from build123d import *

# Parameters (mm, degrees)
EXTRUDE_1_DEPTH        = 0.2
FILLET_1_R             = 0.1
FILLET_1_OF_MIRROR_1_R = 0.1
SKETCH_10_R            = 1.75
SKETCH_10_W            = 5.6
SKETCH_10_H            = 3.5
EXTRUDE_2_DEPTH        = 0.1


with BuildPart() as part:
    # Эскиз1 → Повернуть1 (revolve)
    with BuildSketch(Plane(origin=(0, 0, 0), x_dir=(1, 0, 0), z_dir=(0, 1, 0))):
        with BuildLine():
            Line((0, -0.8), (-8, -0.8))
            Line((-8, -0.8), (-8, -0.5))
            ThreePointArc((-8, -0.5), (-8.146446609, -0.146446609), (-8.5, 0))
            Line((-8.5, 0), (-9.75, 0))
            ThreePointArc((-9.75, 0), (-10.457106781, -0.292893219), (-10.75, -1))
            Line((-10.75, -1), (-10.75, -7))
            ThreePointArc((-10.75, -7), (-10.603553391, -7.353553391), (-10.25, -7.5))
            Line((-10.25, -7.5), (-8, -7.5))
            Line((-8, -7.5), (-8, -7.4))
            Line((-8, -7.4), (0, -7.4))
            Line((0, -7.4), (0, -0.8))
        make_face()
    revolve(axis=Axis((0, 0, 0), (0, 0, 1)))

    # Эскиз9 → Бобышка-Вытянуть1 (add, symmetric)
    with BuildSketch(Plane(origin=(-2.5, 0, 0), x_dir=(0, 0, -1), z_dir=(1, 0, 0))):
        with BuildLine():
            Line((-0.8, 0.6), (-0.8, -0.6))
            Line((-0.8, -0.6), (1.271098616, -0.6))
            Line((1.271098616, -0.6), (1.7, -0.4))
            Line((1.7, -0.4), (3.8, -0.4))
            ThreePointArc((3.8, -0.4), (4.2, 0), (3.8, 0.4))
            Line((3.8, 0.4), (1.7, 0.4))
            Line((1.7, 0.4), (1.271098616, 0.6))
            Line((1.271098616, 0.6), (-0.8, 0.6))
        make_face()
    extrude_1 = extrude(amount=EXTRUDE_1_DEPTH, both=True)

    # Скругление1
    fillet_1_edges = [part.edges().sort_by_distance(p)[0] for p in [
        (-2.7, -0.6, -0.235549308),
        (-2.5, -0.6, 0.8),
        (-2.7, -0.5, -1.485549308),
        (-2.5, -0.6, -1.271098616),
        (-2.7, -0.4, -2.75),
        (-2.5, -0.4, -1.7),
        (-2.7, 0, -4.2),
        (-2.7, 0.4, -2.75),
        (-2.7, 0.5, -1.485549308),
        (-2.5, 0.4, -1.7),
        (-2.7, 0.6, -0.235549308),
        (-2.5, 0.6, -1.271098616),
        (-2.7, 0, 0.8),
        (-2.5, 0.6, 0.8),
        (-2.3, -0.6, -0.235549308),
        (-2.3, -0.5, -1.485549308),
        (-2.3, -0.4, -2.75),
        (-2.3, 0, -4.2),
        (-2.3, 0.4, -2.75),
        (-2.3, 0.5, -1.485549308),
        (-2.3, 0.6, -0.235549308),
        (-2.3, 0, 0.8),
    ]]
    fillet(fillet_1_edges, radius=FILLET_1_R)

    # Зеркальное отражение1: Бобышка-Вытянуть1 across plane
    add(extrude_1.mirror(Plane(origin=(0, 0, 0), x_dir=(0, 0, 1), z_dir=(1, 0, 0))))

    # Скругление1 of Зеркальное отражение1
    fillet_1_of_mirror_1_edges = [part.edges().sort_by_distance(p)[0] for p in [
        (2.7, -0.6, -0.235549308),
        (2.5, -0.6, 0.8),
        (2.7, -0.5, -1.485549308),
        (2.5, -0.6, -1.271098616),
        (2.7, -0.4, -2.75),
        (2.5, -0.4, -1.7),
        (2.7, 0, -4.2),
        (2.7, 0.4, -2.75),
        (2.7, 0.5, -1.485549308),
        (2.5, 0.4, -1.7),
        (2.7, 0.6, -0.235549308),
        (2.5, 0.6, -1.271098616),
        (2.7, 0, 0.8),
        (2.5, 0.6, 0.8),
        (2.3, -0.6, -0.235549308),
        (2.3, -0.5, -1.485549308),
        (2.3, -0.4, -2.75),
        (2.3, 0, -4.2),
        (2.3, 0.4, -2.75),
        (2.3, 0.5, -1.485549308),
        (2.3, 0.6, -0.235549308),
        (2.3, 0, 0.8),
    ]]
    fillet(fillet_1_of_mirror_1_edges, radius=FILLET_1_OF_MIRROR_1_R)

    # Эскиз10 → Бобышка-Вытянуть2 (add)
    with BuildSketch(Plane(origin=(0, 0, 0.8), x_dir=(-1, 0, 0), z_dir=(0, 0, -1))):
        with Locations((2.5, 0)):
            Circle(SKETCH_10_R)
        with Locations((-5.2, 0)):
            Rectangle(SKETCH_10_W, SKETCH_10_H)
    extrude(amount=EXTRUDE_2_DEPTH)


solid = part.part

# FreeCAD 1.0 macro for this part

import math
import FreeCAD as App
import Part
import Sketcher
Q = App.Units.Quantity


def edges_at(feature, points):
    """Names of the edges that pass closest to the given points."""
    edges = feature.Shape.Edges
    near = lambda p: min(range(len(edges)), key=lambda i: edges[i].distToShape(Part.Vertex(*p))[0])
    return sorted({f"Edge{near(p) + 1}" for p in points})


def add_polygon(sketch, points):
    """Adds a closed chain of lines whose ends are joined by coincident constraints."""
    first, n = sketch.GeometryCount, len(points)
    for a, b in zip(points, points[1:] + points[:1]):
        sketch.addGeometry(Part.LineSegment(App.Vector(*a, 0), App.Vector(*b, 0)), False)
    for i in range(n):
        sketch.addConstraint(Sketcher.Constraint("Coincident", first + i, 2, first + (i + 1) % n, 1))

doc = App.newDocument("Part")
params = doc.addObject("Spreadsheet::Sheet", "Params")
for row, (alias, value) in enumerate([
    ("sketch1_radius", "1 mm"),
    ("sketch1_radius2", "0.5 mm"),
    ("sketch1_width", "8 mm"),
    ("sketch1_height", "6 mm"),
    ("sketch1_height2", "0.3 mm"),
    ("revolution_angle", "360 deg"),
    ("sketch2_radius", "0.4 mm"),
    ("sketch2_width", "1.2 mm"),
    ("sketch2_height", "2.1 mm"),
    ("pad1_length", "0.4 mm"),
    ("fillet_radius", "0.1 mm"),
    ("fillet2_radius", "0.1 mm"),
    ("sketch3_diameter", "3.5 mm"),
    ("sketch3_width", "5.6 mm"),
    ("sketch3_height", "3.5 mm"),
    ("pad2_length", "0.1 mm"),
], start=1):
    params.set(f"A{row}", alias)
    params.set(f"B{row}", "=" + value)
    params.setAlias(f"B{row}", alias)

body = doc.addObject("PartDesign::Body", "Body")

# Sketch on XZ plane
sketch1 = body.newObject("Sketcher::SketchObject", "Sketch")
sketch1.AttachmentSupport = (doc.getObject("XZ_Plane"), [""])
sketch1.MapMode = "FlatFace"
sketch1.addGeometry([
    Part.LineSegment(App.Vector(0, 0.8, 0), App.Vector(-8, 0.8, 0)),  # 0
    Part.LineSegment(App.Vector(-8, 0.8, 0), App.Vector(-8, 0.5, 0)),  # 1
    Part.ArcOfCircle(Part.Circle(App.Vector(-8.5, 0.5, 0), App.Vector(0, 0, 1), 0.5), math.radians(-90), math.radians(0)),  # 2
    Part.LineSegment(App.Vector(-8.5, 0, 0), App.Vector(-9.75, 0, 0)),  # 3
    Part.ArcOfCircle(Part.Circle(App.Vector(-9.75, 1, 0), App.Vector(0, 0, 1), 1), math.radians(-180), math.radians(-90)),  # 4
    Part.LineSegment(App.Vector(-10.75, 1, 0), App.Vector(-10.75, 7, 0)),  # 5
    Part.ArcOfCircle(Part.Circle(App.Vector(-10.25, 7, 0), App.Vector(0, 0, 1), 0.5), math.radians(90), math.radians(180)),  # 6
    Part.LineSegment(App.Vector(-10.25, 7.5, 0), App.Vector(-8, 7.5, 0)),  # 7
    Part.LineSegment(App.Vector(-8, 7.5, 0), App.Vector(-8, 7.4, 0)),  # 8
    Part.LineSegment(App.Vector(-8, 7.4, 0), App.Vector(0, 7.4, 0)),  # 9
    Part.LineSegment(App.Vector(0, 7.4, 0), App.Vector(0, 0.8, 0)),  # 10
], False)
sketch1.addConstraint([
    Sketcher.Constraint("Coincident", 0, 2, 1, 1),
    Sketcher.Constraint("Tangent", 1, 2, 2, 2),
    Sketcher.Constraint("Tangent", 2, 1, 3, 1),
    Sketcher.Constraint("Tangent", 3, 2, 4, 2),
    Sketcher.Constraint("Tangent", 4, 1, 5, 1),
    Sketcher.Constraint("Tangent", 5, 2, 6, 2),
    Sketcher.Constraint("Tangent", 6, 1, 7, 1),
    Sketcher.Constraint("Coincident", 7, 2, 8, 1),
    Sketcher.Constraint("Coincident", 8, 2, 9, 1),
    Sketcher.Constraint("Coincident", 9, 2, 10, 1),
    Sketcher.Constraint("Coincident", 10, 2, 0, 1),
    Sketcher.Constraint("Horizontal", 0),
    Sketcher.Constraint("Vertical", 1),
    Sketcher.Constraint("Horizontal", 3),
    Sketcher.Constraint("Vertical", 5),
    Sketcher.Constraint("Horizontal", 7),
    Sketcher.Constraint("Vertical", 8),
    Sketcher.Constraint("Horizontal", 9),
    Sketcher.Constraint("Vertical", 10),
    Sketcher.Constraint("Equal", 2, 6),
    Sketcher.Constraint("PointOnObject", 2, 1, -1),
    Sketcher.Constraint("PointOnObject", 9, 2, -2),
    Sketcher.Constraint("Vertical", 1, 2, 7, 2),
    Sketcher.Constraint("Radius", 4, Q("1 mm")),
    Sketcher.Constraint("Radius", 2, Q("0.5 mm")),
    Sketcher.Constraint("DistanceX", 0, 2, 0, 1, Q("8 mm")),
    Sketcher.Constraint("DistanceY", 5, 1, 5, 2, Q("6 mm")),
    Sketcher.Constraint("DistanceY", 1, 2, 1, 1, Q("0.3 mm")),
    Sketcher.Constraint("DistanceY", 8, 2, 8, 1, Q("0.1 mm")),
    Sketcher.Constraint("DistanceX", 3, 2, 3, 1, Q("1.25 mm")),
])
sketch1.setExpression("Constraints[23]", "Params.sketch1_radius")
sketch1.setExpression("Constraints[24]", "Params.sketch1_radius2")
sketch1.setExpression("Constraints[25]", "Params.sketch1_width")
sketch1.setExpression("Constraints[26]", "Params.sketch1_height")
sketch1.setExpression("Constraints[27]", "Params.sketch1_height2")
revolution = body.newObject("PartDesign::Revolution", "Revolution")
revolution.Profile = sketch1
revolution.ReferenceAxis = (sketch1, ["V_Axis"])
revolution.setExpression("Angle", "Params.revolution_angle")

# Sketch on YZ plane
sketch2 = body.newObject("Sketcher::SketchObject", "Sketch001")
sketch2.AttachmentSupport = (doc.getObject("YZ_Plane"), [""])
sketch2.MapMode = "FlatFace"
sketch2.AttachmentOffset = App.Placement(App.Vector(0, 0, -2.5), App.Rotation())
sketch2.addGeometry([
    Part.LineSegment(App.Vector(0.6, 0.8, 0), App.Vector(-0.6, 0.8, 0)),  # 0
    Part.LineSegment(App.Vector(-0.6, 0.8, 0), App.Vector(-0.6, -1.271099, 0)),  # 1
    Part.LineSegment(App.Vector(-0.6, -1.271099, 0), App.Vector(-0.4, -1.7, 0)),  # 2
    Part.LineSegment(App.Vector(-0.4, -1.7, 0), App.Vector(-0.4, -3.8, 0)),  # 3
    Part.ArcOfCircle(Part.Circle(App.Vector(0, -3.8, 0), App.Vector(0, 0, 1), 0.4), math.radians(180), math.radians(360)),  # 4
    Part.LineSegment(App.Vector(0.4, -3.8, 0), App.Vector(0.4, -1.7, 0)),  # 5
    Part.LineSegment(App.Vector(0.4, -1.7, 0), App.Vector(0.6, -1.271099, 0)),  # 6
    Part.LineSegment(App.Vector(0.6, -1.271099, 0), App.Vector(0.6, 0.8, 0)),  # 7
], False)
sketch2.addConstraint([
    Sketcher.Constraint("Coincident", 0, 2, 1, 1),
    Sketcher.Constraint("Coincident", 1, 2, 2, 1),
    Sketcher.Constraint("Coincident", 2, 2, 3, 1),
    Sketcher.Constraint("Tangent", 3, 2, 4, 1),
    Sketcher.Constraint("Tangent", 4, 2, 5, 1),
    Sketcher.Constraint("Coincident", 5, 2, 6, 1),
    Sketcher.Constraint("Coincident", 6, 2, 7, 1),
    Sketcher.Constraint("Coincident", 7, 2, 0, 1),
    Sketcher.Constraint("Horizontal", 0),
    Sketcher.Constraint("Vertical", 1),
    Sketcher.Constraint("Vertical", 3),
    Sketcher.Constraint("Vertical", 5),
    Sketcher.Constraint("Vertical", 7),
    Sketcher.Constraint("Symmetric", 2, 2, 5, 2, -2),
    Sketcher.Constraint("Symmetric", 1, 2, 6, 2, -2),
    Sketcher.Constraint("Radius", 4, Q("0.4 mm")),
    Sketcher.Constraint("Angle", 2, Q("-65 deg")),
    Sketcher.Constraint("DistanceX", 0, 2, 0, 1, Q("1.2 mm")),
    Sketcher.Constraint("DistanceY", 3, 2, 3, 1, Q("2.1 mm")),
    Sketcher.Constraint("DistanceY", 4, 3, -1, 1, Q("3.8 mm")),
    Sketcher.Constraint("DistanceY", -1, 1, 0, 2, Q("0.8 mm")),
])
sketch2.setExpression("Constraints[15]", "Params.sketch2_radius")
sketch2.setExpression("Constraints[17]", "Params.sketch2_width")
sketch2.setExpression("Constraints[18]", "Params.sketch2_height")
pad1 = body.newObject("PartDesign::Pad", "Pad")
pad1.Profile = sketch2
pad1.setExpression("Length", "Params.pad1_length")
pad1.Midplane = True
doc.recompute()

fillet = body.newObject("PartDesign::Fillet", "Fillet")
fillet.Base = (pad1, edges_at(pad1, [
    (-2.7, -0.6, -0.236),
    (-2.5, -0.6, 0.8),
    (-2.7, -0.5, -1.486),
    (-2.5, -0.6, -1.271),
    (-2.7, -0.4, -2.75),
    (-2.5, -0.4, -1.7),
    (-2.7, 0, -4.2),
    (-2.7, 0.4, -2.75),
    (-2.7, 0.5, -1.486),
    (-2.5, 0.4, -1.7),
    (-2.7, 0.6, -0.236),
    (-2.5, 0.6, -1.271),
    (-2.7, 0, 0.8),
    (-2.5, 0.6, 0.8),
    (-2.3, -0.6, -0.236),
    (-2.3, -0.5, -1.486),
    (-2.3, -0.4, -2.75),
    (-2.3, 0, -4.2),
    (-2.3, 0.4, -2.75),
    (-2.3, 0.5, -1.486),
    (-2.3, 0.6, -0.236),
    (-2.3, 0, 0.8),
]))
fillet.setExpression("Radius", "Params.fillet_radius")
doc.recompute()

mirrored = body.newObject("PartDesign::Mirrored", "Mirrored")
mirrored.Originals = [pad1]
mirrored.MirrorPlane = (doc.getObject("YZ_Plane"), [""])
body.Tip = mirrored
doc.recompute()

fillet2 = body.newObject("PartDesign::Fillet", "Fillet001")
fillet2.Base = (mirrored, edges_at(mirrored, [
    (2.7, -0.6, -0.236),
    (2.5, -0.6, 0.8),
    (2.7, -0.5, -1.486),
    (2.5, -0.6, -1.271),
    (2.7, -0.4, -2.75),
    (2.5, -0.4, -1.7),
    (2.7, 0, -4.2),
    (2.7, 0.4, -2.75),
    (2.7, 0.5, -1.486),
    (2.5, 0.4, -1.7),
    (2.7, 0.6, -0.236),
    (2.5, 0.6, -1.271),
    (2.7, 0, 0.8),
    (2.5, 0.6, 0.8),
    (2.3, -0.6, -0.236),
    (2.3, -0.5, -1.486),
    (2.3, -0.4, -2.75),
    (2.3, 0, -4.2),
    (2.3, 0.4, -2.75),
    (2.3, 0.5, -1.486),
    (2.3, 0.6, -0.236),
    (2.3, 0, 0.8),
]))
fillet2.setExpression("Radius", "Params.fillet2_radius")

# Sketch on XY plane
sketch3 = body.newObject("Sketcher::SketchObject", "Sketch002")
sketch3.AttachmentSupport = (doc.getObject("XY_Plane"), [""])
sketch3.MapMode = "FlatFace"
sketch3.AttachmentOffset = App.Placement(App.Vector(0, 0, 0.8), App.Rotation())
sketch3.addGeometry(Part.Circle(App.Vector(-2.5, 0, 0), App.Vector(0, 0, 1), 1.75), False)  # 0
add_polygon(sketch3, [(8, 1.75), (8, -1.75), (2.4, -1.75), (2.4, 1.75)])  # lines 1-4
sketch3.addConstraint([
    Sketcher.Constraint("Vertical", 1),
    Sketcher.Constraint("Horizontal", 2),
    Sketcher.Constraint("Vertical", 3),
    Sketcher.Constraint("Horizontal", 4),
    Sketcher.Constraint("PointOnObject", 0, 3, -1),
    Sketcher.Constraint("Diameter", 0, Q("3.5 mm")),
    Sketcher.Constraint("DistanceX", 2, 2, 2, 1, Q("5.6 mm")),
    Sketcher.Constraint("DistanceY", 1, 2, 1, 1, Q("3.5 mm")),
    Sketcher.Constraint("DistanceX", -1, 1, 1, 2, Q("8 mm")),
    Sketcher.Constraint("DistanceX", 0, 3, -1, 1, Q("2.5 mm")),
    Sketcher.Constraint("DistanceY", 1, 2, -1, 1, Q("1.75 mm")),
])
sketch3.setExpression("Constraints[9]", "Params.sketch3_diameter")
sketch3.setExpression("Constraints[10]", "Params.sketch3_width")
sketch3.setExpression("Constraints[11]", "Params.sketch3_height")
pad2 = body.newObject("PartDesign::Pad", "Pad001")
pad2.Profile = sketch3
pad2.setExpression("Length", "Params.pad2_length")
pad2.Reversed = True

doc.recompute()
